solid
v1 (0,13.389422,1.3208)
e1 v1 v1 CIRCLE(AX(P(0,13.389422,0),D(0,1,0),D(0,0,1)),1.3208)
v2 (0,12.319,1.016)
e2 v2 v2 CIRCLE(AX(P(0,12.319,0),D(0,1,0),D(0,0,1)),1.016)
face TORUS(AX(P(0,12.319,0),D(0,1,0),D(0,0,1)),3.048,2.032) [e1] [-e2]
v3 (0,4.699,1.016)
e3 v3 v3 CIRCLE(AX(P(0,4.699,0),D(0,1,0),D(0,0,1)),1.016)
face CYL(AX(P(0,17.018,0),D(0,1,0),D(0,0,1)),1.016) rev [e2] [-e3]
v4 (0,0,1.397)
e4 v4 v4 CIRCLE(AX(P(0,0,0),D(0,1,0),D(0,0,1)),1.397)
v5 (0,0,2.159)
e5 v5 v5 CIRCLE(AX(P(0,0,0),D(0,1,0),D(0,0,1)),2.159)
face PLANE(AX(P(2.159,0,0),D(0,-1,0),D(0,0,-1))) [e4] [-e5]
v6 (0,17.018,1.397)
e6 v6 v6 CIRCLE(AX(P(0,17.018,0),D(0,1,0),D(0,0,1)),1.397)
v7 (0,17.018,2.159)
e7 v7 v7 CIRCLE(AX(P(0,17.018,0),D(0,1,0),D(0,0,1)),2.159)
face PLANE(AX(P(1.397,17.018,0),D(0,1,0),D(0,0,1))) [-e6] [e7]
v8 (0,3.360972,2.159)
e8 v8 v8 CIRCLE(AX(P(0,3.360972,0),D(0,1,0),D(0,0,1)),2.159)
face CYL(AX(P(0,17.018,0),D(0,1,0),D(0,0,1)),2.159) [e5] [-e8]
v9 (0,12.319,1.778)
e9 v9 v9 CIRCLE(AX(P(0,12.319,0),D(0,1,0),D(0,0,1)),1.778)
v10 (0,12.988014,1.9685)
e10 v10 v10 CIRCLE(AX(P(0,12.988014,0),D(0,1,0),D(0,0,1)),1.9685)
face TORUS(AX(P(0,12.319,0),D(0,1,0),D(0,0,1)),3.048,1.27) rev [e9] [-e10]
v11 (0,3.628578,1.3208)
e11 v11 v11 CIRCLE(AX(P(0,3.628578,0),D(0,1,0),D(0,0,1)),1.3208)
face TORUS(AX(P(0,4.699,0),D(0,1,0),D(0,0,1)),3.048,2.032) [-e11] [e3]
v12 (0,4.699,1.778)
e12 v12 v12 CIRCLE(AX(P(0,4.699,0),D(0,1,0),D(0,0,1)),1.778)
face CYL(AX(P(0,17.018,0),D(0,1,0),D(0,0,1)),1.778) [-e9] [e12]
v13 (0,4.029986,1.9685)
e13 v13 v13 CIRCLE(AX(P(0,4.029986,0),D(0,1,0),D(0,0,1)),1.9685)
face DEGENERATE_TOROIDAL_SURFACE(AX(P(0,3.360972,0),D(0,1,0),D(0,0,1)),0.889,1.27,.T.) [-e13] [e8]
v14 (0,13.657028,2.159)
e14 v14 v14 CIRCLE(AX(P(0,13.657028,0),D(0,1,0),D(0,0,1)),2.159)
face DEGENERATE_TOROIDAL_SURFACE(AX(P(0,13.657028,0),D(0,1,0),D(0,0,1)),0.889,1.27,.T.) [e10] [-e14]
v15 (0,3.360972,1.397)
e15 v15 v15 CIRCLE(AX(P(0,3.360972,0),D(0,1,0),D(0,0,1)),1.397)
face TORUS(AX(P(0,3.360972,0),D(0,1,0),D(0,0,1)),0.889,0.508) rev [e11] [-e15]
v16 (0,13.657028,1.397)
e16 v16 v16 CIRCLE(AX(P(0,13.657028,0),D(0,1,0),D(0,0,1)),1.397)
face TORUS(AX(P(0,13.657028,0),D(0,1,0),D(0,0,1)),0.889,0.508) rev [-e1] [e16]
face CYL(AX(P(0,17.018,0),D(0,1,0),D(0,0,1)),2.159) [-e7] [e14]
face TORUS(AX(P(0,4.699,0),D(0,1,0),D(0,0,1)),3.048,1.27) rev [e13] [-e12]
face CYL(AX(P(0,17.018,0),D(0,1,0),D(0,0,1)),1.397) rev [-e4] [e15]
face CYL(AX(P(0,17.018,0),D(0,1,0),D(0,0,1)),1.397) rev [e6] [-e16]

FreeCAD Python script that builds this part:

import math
import FreeCAD as App
import Part
import Sketcher
Q = App.Units.Quantity

doc = App.newDocument("Part")
params = doc.addObject("Spreadsheet::Sheet", "Params")
for row, (alias, value) in enumerate([
    ("sketch1_radius", "0.02 in"),
    ("sketch1_radius2", "0.08 in"),
    ("sketch1_height", "0.3 in"),
    ("revolution_angle", "360 deg"),
], start=1):
    params.set(f"A{row}", alias)
    params.set(f"B{row}", "=" + value)
    params.setAlias(f"B{row}", alias)

body = doc.addObject("PartDesign::Body", "Body")

# Sketch on XY plane
sketch1 = body.newObject("Sketcher::SketchObject", "Sketch")
sketch1.AttachmentSupport = (doc.getObject("XY_Plane"), [""])
sketch1.MapMode = "FlatFace"
sketch1.addGeometry([
    Part.LineSegment(App.Vector(2.16, 13.66, 0), App.Vector(2.16, 17.02, 0)),  # 0
    Part.LineSegment(App.Vector(2.16, 17.02, 0), App.Vector(1.4, 17.02, 0)),  # 1
    Part.LineSegment(App.Vector(1.4, 17.02, 0), App.Vector(1.4, 13.66, 0)),  # 2
    Part.ArcOfCircle(Part.Circle(App.Vector(0.89, 13.66, 0), App.Vector(0, 0, 1), 0.51), math.radians(-32), math.radians(0)),  # 3
    Part.ArcOfCircle(Part.Circle(App.Vector(3.05, 12.32, 0), App.Vector(0, 0, 1), 2.03), math.radians(148), math.radians(180)),  # 4
    Part.LineSegment(App.Vector(1.02, 12.32, 0), App.Vector(1.02, 4.7, 0)),  # 5
    Part.ArcOfCircle(Part.Circle(App.Vector(3.05, 4.7, 0), App.Vector(0, 0, 1), 2.03), math.radians(180), math.radians(212)),  # 6
    Part.ArcOfCircle(Part.Circle(App.Vector(0.89, 3.36, 0), App.Vector(0, 0, 1), 0.51), math.radians(0), math.radians(32)),  # 7
    Part.LineSegment(App.Vector(1.4, 3.36, 0), App.Vector(1.4, 0, 0)),  # 8
    Part.LineSegment(App.Vector(1.4, 0, 0), App.Vector(2.16, 0, 0)),  # 9
    Part.LineSegment(App.Vector(2.16, 0, 0), App.Vector(2.16, 3.36, 0)),  # 10
    Part.ArcOfCircle(Part.Circle(App.Vector(0.89, 3.36, 0), App.Vector(0, 0, 1), 1.27), math.radians(0), math.radians(32)),  # 11
    Part.ArcOfCircle(Part.Circle(App.Vector(3.05, 4.7, 0), App.Vector(0, 0, 1), 1.27), math.radians(180), math.radians(212)),  # 12
    Part.LineSegment(App.Vector(1.78, 4.7, 0), App.Vector(1.78, 12.32, 0)),  # 13
    Part.ArcOfCircle(Part.Circle(App.Vector(3.05, 12.32, 0), App.Vector(0, 0, 1), 1.27), math.radians(148), math.radians(180)),  # 14
    Part.ArcOfCircle(Part.Circle(App.Vector(0.89, 13.66, 0), App.Vector(0, 0, 1), 1.27), math.radians(-32), math.radians(0)),  # 15
], False)
sketch1.addConstraint([
    Sketcher.Constraint("Coincident", 0, 2, 1, 1),
    Sketcher.Constraint("Coincident", 1, 2, 2, 1),
    Sketcher.Constraint("Tangent", 2, 2, 3, 2),
    Sketcher.Constraint("Tangent", 3, 1, 4, 1),
    Sketcher.Constraint("Tangent", 4, 2, 5, 1),
    Sketcher.Constraint("Tangent", 5, 2, 6, 1),
    Sketcher.Constraint("Tangent", 6, 2, 7, 2),
    Sketcher.Constraint("Tangent", 7, 1, 8, 1),
    Sketcher.Constraint("Coincident", 8, 2, 9, 1),
    Sketcher.Constraint("Coincident", 9, 2, 10, 1),
    Sketcher.Constraint("Tangent", 10, 2, 11, 1),
    Sketcher.Constraint("Tangent", 11, 2, 12, 2),
    Sketcher.Constraint("Tangent", 12, 1, 13, 1),
    Sketcher.Constraint("Tangent", 13, 2, 14, 2),
    Sketcher.Constraint("Tangent", 14, 1, 15, 1),
    Sketcher.Constraint("Tangent", 15, 2, 0, 1),
    Sketcher.Constraint("Vertical", 0),
    Sketcher.Constraint("Horizontal", 1),
    Sketcher.Constraint("Vertical", 2),
    Sketcher.Constraint("Vertical", 5),
    Sketcher.Constraint("Vertical", 8),
    Sketcher.Constraint("Horizontal", 9),
    Sketcher.Constraint("Vertical", 10),
    Sketcher.Constraint("Vertical", 13),
    Sketcher.Constraint("Coincident", 11, 3, 7, 3),
    Sketcher.Constraint("Coincident", 12, 3, 6, 3),
    Sketcher.Constraint("Coincident", 14, 3, 4, 3),
    Sketcher.Constraint("Coincident", 15, 3, 3, 3),
    Sketcher.Constraint("Equal", 4, 6),
    Sketcher.Constraint("Equal", 3, 7),
    Sketcher.Constraint("Equal", 11, 12),
    Sketcher.Constraint("PointOnObject", 8, 2, -1),
    Sketcher.Constraint("Vertical", 3, 3, 7, 3),
    Sketcher.Constraint("Equal", 2, 8),
    Sketcher.Constraint("Radius", 3, Q("0.02 in")),
    Sketcher.Constraint("Radius", 4, Q("0.08 in")),
    Sketcher.Constraint("DistanceY", 5, 2, 5, 1, Q("0.3 in")),
    Sketcher.Constraint("DistanceX", -1, 1, 4, 3, Q("0.12 in")),
    Sketcher.Constraint("DistanceY", -1, 1, 0, 2, Q("0.67 in")),
    Sketcher.Constraint("DistanceX", -1, 1, 3, 3, Q("0.035 in")),
])
sketch1.setExpression("Constraints[34]", "Params.sketch1_radius")
sketch1.setExpression("Constraints[35]", "Params.sketch1_radius2")
sketch1.setExpression("Constraints[36]", "Params.sketch1_height")
revolution = body.newObject("PartDesign::Revolution", "Revolution")
revolution.Profile = sketch1
revolution.ReferenceAxis = (sketch1, ["V_Axis"])
revolution.setExpression("Angle", "Params.revolution_angle")

doc.recompute()
